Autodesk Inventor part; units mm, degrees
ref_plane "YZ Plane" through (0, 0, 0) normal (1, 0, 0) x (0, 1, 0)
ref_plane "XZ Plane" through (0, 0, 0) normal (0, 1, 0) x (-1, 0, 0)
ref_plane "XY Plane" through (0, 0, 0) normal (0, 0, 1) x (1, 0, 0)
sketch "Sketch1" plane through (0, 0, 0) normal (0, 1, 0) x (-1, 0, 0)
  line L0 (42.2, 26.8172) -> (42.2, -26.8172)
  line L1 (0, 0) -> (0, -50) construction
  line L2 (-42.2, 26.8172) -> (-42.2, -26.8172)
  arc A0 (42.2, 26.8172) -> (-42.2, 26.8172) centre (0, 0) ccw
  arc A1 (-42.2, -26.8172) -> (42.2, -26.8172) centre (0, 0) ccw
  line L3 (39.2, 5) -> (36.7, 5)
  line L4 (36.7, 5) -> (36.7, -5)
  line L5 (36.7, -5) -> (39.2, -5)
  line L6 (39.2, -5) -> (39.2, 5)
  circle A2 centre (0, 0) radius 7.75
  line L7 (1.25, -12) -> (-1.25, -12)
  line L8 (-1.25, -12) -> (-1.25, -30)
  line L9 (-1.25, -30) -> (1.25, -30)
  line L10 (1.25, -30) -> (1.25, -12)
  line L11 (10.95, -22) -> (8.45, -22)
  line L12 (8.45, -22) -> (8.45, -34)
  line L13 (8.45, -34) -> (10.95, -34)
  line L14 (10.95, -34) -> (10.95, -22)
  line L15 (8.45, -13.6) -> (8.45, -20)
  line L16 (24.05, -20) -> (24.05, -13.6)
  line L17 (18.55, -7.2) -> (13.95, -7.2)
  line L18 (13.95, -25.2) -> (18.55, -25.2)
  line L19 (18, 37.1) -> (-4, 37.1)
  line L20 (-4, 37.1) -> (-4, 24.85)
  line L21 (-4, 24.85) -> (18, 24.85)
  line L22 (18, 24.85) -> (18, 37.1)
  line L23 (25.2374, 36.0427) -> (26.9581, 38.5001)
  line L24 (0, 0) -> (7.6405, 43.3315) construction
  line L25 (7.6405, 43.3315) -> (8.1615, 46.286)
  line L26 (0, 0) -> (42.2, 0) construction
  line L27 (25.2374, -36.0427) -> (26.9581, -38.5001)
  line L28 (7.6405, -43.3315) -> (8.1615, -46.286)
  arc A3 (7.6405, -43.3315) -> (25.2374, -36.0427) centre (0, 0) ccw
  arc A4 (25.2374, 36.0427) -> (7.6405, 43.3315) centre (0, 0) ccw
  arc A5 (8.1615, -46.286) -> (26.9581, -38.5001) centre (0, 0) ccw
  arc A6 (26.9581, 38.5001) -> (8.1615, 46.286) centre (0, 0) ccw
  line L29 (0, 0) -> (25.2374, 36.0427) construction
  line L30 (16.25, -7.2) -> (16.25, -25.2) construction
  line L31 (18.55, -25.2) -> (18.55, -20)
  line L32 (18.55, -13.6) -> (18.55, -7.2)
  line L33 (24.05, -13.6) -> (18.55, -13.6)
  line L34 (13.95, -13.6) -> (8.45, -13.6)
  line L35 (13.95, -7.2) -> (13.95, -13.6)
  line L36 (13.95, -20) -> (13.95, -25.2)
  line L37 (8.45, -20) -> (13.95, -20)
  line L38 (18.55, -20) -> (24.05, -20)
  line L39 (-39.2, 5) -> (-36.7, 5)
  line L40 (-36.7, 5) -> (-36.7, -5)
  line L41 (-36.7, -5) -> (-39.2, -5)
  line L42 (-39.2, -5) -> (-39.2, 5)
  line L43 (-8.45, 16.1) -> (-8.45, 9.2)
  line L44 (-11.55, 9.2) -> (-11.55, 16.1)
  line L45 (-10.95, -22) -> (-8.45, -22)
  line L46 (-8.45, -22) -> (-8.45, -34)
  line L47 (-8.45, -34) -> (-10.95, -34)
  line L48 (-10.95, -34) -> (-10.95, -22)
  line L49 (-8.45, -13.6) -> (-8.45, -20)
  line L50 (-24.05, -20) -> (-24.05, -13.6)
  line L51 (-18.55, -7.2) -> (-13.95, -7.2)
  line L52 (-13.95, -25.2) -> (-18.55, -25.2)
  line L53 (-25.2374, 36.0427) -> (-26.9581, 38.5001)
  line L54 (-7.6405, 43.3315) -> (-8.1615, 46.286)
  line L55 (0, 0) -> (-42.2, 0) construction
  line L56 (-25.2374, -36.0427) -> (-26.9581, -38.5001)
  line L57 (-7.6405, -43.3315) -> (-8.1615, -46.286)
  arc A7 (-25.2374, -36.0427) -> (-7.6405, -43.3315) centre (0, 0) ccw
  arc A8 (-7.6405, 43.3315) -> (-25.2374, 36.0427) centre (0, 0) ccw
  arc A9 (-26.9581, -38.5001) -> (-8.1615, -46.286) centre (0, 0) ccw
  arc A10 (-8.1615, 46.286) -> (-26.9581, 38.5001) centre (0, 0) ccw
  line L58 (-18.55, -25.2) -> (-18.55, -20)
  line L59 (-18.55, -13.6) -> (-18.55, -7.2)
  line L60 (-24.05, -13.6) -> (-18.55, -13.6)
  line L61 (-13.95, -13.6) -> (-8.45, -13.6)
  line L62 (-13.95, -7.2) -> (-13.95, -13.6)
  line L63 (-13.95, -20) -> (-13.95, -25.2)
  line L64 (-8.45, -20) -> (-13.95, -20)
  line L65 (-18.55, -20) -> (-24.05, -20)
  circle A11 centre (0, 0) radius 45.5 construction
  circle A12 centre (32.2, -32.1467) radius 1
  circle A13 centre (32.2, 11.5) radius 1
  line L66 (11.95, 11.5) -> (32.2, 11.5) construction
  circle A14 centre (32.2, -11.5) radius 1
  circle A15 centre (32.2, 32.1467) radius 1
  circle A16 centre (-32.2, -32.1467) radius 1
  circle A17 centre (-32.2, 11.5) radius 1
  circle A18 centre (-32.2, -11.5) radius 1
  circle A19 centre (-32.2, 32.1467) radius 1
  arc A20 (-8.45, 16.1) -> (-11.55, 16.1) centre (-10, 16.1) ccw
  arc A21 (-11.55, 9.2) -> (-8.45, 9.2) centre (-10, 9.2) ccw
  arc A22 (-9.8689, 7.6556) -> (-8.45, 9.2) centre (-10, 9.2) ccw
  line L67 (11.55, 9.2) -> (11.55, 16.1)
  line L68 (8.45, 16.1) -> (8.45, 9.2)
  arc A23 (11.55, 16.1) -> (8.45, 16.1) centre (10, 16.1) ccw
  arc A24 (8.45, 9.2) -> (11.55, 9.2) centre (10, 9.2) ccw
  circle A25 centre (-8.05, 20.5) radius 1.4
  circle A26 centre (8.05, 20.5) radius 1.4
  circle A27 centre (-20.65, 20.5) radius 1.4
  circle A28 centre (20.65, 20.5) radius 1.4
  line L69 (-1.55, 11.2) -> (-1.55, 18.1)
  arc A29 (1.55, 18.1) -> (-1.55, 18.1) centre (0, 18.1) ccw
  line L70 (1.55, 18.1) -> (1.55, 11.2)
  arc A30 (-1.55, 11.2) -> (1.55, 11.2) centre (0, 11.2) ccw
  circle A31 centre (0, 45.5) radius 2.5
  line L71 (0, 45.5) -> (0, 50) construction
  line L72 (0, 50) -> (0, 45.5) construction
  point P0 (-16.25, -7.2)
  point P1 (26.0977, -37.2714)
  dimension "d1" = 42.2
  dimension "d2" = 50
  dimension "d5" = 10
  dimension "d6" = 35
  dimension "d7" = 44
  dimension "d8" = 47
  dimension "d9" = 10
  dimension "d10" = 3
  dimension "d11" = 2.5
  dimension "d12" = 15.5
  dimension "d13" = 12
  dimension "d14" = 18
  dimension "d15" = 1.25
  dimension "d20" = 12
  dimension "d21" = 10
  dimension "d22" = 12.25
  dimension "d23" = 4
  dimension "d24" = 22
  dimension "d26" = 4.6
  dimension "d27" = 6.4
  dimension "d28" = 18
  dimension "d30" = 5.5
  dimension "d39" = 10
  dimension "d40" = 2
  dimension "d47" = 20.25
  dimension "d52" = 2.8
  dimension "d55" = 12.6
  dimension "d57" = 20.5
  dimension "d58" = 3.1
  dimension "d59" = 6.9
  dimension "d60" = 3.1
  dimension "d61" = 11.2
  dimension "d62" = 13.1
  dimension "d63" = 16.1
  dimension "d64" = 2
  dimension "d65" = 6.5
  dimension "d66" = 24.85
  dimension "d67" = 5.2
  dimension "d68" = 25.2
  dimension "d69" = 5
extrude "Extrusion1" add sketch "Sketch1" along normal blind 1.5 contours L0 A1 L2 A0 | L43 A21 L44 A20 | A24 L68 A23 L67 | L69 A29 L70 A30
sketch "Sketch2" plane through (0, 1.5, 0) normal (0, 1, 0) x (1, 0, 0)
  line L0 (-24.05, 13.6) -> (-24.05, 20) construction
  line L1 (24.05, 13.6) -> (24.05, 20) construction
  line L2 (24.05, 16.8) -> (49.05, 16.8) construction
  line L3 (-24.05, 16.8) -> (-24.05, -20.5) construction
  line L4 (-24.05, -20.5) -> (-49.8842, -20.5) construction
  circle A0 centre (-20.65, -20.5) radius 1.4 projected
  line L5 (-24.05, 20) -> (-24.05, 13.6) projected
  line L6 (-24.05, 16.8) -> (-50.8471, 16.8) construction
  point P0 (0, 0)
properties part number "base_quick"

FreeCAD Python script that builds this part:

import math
import FreeCAD as App
import Part
import Sketcher
from FreeCAD import Vector
Q = App.Units.Quantity


def add_polygon(sketch, points):
    """Adds a closed chain of lines whose ends are joined by coincident constraints."""
    first, n = sketch.GeometryCount, len(points)
    for a, b in zip(points, points[1:] + points[:1]):
        sketch.addGeometry(Part.LineSegment(App.Vector(*a, 0), App.Vector(*b, 0)), False)
    for i in range(n):
        sketch.addConstraint(Sketcher.Constraint("Coincident", first + i, 2, first + (i + 1) % n, 1))

doc = App.newDocument("Part")
body = doc.addObject("PartDesign::Body", "Body")

# Sketch on XZ plane
sketch1 = body.newObject("Sketcher::SketchObject", "Sketch")
sketch1.AttachmentSupport = (doc.getObject("XZ_Plane"), [""])
sketch1.MapMode = "FlatFace"
sketch1.addGeometry(Part.LineSegment(Vector(-42.2, -26.8172, 0), Vector(-42.2, 26.8172, 0)), False)  # 0
sketch1.addGeometry(Part.ArcOfCircle(Part.Circle(Vector(0, 0, 0), Vector(0, 0, 1), 50.000022), math.radians(32.435088), math.radians(147.564912)), False)  # 1
sketch1.addGeometry(Part.LineSegment(Vector(42.2, 26.8172, 0), Vector(42.2, -26.8172, 0)), False)  # 2
sketch1.addGeometry(Part.ArcOfCircle(Part.Circle(Vector(0, 0, 0), Vector(0, 0, 1), 50.000022), math.radians(-147.564912), math.radians(-32.435088)), False)  # 3
sketch1.addGeometry(Part.Circle(Vector(32.2, -32.1467, 0), Vector(0, 0, 1), 1), False)  # 4
sketch1.addGeometry(Part.LineSegment(Vector(26.9581, -38.5001, 0), Vector(25.2374, -36.0427, 0)), False)  # 5
sketch1.addGeometry(Part.ArcOfCircle(Part.Circle(Vector(0.000748, -0.001363, 0), Vector(0, 0, 1), 43.998483), math.radians(-80.000667), math.radians(-54.999748)), False)  # 6
sketch1.addGeometry(Part.LineSegment(Vector(7.6405, -43.3315, 0), Vector(8.1615, -46.286, 0)), False)  # 7
sketch1.addGeometry(Part.ArcOfCircle(Part.Circle(Vector(-0.000763, 0.00139, 0), Vector(0, 0, 1), 47.001542), math.radians(-79.999344), math.radians(-55.000171)), False)  # 8
add_polygon(sketch1, [(10.95, -34), (10.95, -22), (8.45, -22), (8.45, -34)])  # lines 9-12
sketch1.addGeometry(Part.Circle(Vector(32.2, -11.5, 0), Vector(0, 0, 1), 1), False)  # 13
add_polygon(sketch1, [(13.95, -13.6), (8.45, -13.6), (8.45, -20), (13.95, -20), (13.95, -25.2), (18.55, -25.2), (18.55, -20), (24.05, -20), (24.05, -13.6), (18.55, -13.6), (18.55, -7.2), (13.95, -7.2)])  # lines 14-25
sketch1.addGeometry(Part.ArcOfCircle(Part.Circle(Vector(0.000435, 0.001493, 0), Vector(0, 0, 1), 44.001502), math.radians(-124.999381), math.radians(-100.000204)), False)  # 26
sketch1.addGeometry(Part.LineSegment(Vector(-25.2374, -36.0427, 0), Vector(-26.9581, -38.5001, 0)), False)  # 27
sketch1.addGeometry(Part.ArcOfCircle(Part.Circle(Vector(-0.000444, -0.001522, 0), Vector(0, 0, 1), 46.998465), math.radians(-125.000661), math.radians(-99.999825)), False)  # 28
sketch1.addGeometry(Part.LineSegment(Vector(-8.1615, -46.286, 0), Vector(-7.6405, -43.3315, 0)), False)  # 29
add_polygon(sketch1, [(-8.45, -22), (-10.95, -22), (-10.95, -34), (-8.45, -34)])  # lines 30-33
sketch1.addGeometry(Part.Circle(Vector(-32.2, -32.1467, 0), Vector(0, 0, 1), 1), False)  # 34
add_polygon(sketch1, [(1.25, -12), (-1.25, -12), (-1.25, -30), (1.25, -30)])  # lines 35-38
add_polygon(sketch1, [(-8.45, -20), (-8.45, -13.6), (-13.95, -13.6), (-13.95, -7.2), (-18.55, -7.2), (-18.55, -13.6), (-24.05, -13.6), (-24.05, -20), (-18.55, -20), (-18.55, -25.2), (-13.95, -25.2), (-13.95, -20)])  # lines 39-50
sketch1.addGeometry(Part.Circle(Vector(-32.2, -11.5, 0), Vector(0, 0, 1), 1), False)  # 51
add_polygon(sketch1, [(39.2, -5), (39.2, 5), (36.7, 5), (36.7, -5)])  # lines 52-55
sketch1.addGeometry(Part.Circle(Vector(32.2, 11.5, 0), Vector(0, 0, 1), 1), False)  # 56
sketch1.addGeometry(Part.Circle(Vector(20.65, 20.5, 0), Vector(0, 0, 1), 1.4), False)  # 57
sketch1.addGeometry(Part.Circle(Vector(8.05, 20.5, 0), Vector(0, 0, 1), 1.4), False)  # 58
sketch1.addGeometry(Part.Circle(Vector(32.2, 32.1467, 0), Vector(0, 0, 1), 1), False)  # 59
sketch1.addGeometry(Part.ArcOfCircle(Part.Circle(Vector(-0.000435, -0.001493, 0), Vector(0, 0, 1), 44.001502), math.radians(55.000619), math.radians(79.999796)), False)  # 60
sketch1.addGeometry(Part.LineSegment(Vector(25.2374, 36.0427, 0), Vector(26.9581, 38.5001, 0)), False)  # 61
sketch1.addGeometry(Part.ArcOfCircle(Part.Circle(Vector(0.000444, 0.001522, 0), Vector(0, 0, 1), 46.998465), math.radians(54.999339), math.radians(80.000175)), False)  # 62
sketch1.addGeometry(Part.LineSegment(Vector(8.1615, 46.286, 0), Vector(7.6405, 43.3315, 0)), False)  # 63
sketch1.addGeometry(Part.Circle(Vector(0, 0, 0), Vector(0, 0, 1), 7.75), False)  # 64
sketch1.addGeometry(Part.Circle(Vector(-8.05, 20.5, 0), Vector(0, 0, 1), 1.4), False)  # 65
sketch1.addGeometry(Part.Circle(Vector(-20.65, 20.5, 0), Vector(0, 0, 1), 1.4), False)  # 66
add_polygon(sketch1, [(-36.7, 5), (-39.2, 5), (-39.2, -5), (-36.7, -5)])  # lines 67-70
sketch1.addGeometry(Part.Circle(Vector(-32.2, 11.5, 0), Vector(0, 0, 1), 1), False)  # 71
add_polygon(sketch1, [(4, 37.1), (-18, 37.1), (-18, 24.85), (4, 24.85)])  # lines 72-75
sketch1.addGeometry(Part.Circle(Vector(0, 45.5, 0), Vector(0, 0, 1), 2.5), False)  # 76
sketch1.addGeometry(Part.LineSegment(Vector(-26.9581, 38.5001, 0), Vector(-25.2374, 36.0427, 0)), False)  # 77
sketch1.addGeometry(Part.ArcOfCircle(Part.Circle(Vector(-0.000748, 0.001363, 0), Vector(0, 0, 1), 43.998483), math.radians(99.999333), math.radians(125.000252)), False)  # 78
sketch1.addGeometry(Part.LineSegment(Vector(-7.6405, 43.3315, 0), Vector(-8.1615, 46.286, 0)), False)  # 79
sketch1.addGeometry(Part.ArcOfCircle(Part.Circle(Vector(0.000763, -0.00139, 0), Vector(0, 0, 1), 47.001542), math.radians(100.000656), math.radians(124.999829)), False)  # 80
sketch1.addGeometry(Part.Circle(Vector(-32.2, 32.1467, 0), Vector(0, 0, 1), 1), False)  # 81
sketch1.addConstraint([
    Sketcher.Constraint("Coincident", 0, 2, 1, 2),
    Sketcher.Constraint("Coincident", 1, 1, 2, 1),
    Sketcher.Constraint("Coincident", 2, 2, 3, 2),
    Sketcher.Constraint("Coincident", 3, 1, 0, 1),
    Sketcher.Constraint("Coincident", 5, 2, 6, 2),
    Sketcher.Constraint("Coincident", 6, 1, 7, 1),
    Sketcher.Constraint("Coincident", 7, 2, 8, 1),
    Sketcher.Constraint("Coincident", 8, 2, 5, 1),
    Sketcher.Constraint("Coincident", 26, 1, 27, 1),
    Sketcher.Constraint("Coincident", 27, 2, 28, 1),
    Sketcher.Constraint("Coincident", 28, 2, 29, 1),
    Sketcher.Constraint("Coincident", 29, 2, 26, 2),
    Sketcher.Constraint("Coincident", 60, 1, 61, 1),
    Sketcher.Constraint("Coincident", 61, 2, 62, 1),
    Sketcher.Constraint("Coincident", 62, 2, 63, 1),
    Sketcher.Constraint("Coincident", 63, 2, 60, 2),
    Sketcher.Constraint("Coincident", 77, 2, 78, 2),
    Sketcher.Constraint("Coincident", 78, 1, 79, 1),
    Sketcher.Constraint("Coincident", 79, 2, 80, 1),
    Sketcher.Constraint("Coincident", 80, 2, 77, 1),
    Sketcher.Constraint("Vertical", 0),
    Sketcher.Constraint("Vertical", 2),
    Sketcher.Constraint("Vertical", 9),
    Sketcher.Constraint("Horizontal", 10),
    Sketcher.Constraint("Vertical", 11),
    Sketcher.Constraint("Horizontal", 12),
    Sketcher.Constraint("Horizontal", 14),
    Sketcher.Constraint("Vertical", 15),
    Sketcher.Constraint("Horizontal", 16),
    Sketcher.Constraint("Vertical", 17),
    Sketcher.Constraint("Horizontal", 18),
    Sketcher.Constraint("Vertical", 19),
    Sketcher.Constraint("Horizontal", 20),
    Sketcher.Constraint("Vertical", 21),
    Sketcher.Constraint("Horizontal", 22),
    Sketcher.Constraint("Vertical", 23),
    Sketcher.Constraint("Horizontal", 24),
    Sketcher.Constraint("Vertical", 25),
    Sketcher.Constraint("Horizontal", 30),
    Sketcher.Constraint("Vertical", 31),
    Sketcher.Constraint("Horizontal", 32),
    Sketcher.Constraint("Vertical", 33),
    Sketcher.Constraint("Horizontal", 35),
    Sketcher.Constraint("Vertical", 36),
    Sketcher.Constraint("Horizontal", 37),
    Sketcher.Constraint("Vertical", 38),
    Sketcher.Constraint("Vertical", 39),
    Sketcher.Constraint("Horizontal", 40),
    Sketcher.Constraint("Vertical", 41),
    Sketcher.Constraint("Horizontal", 42),
    Sketcher.Constraint("Vertical", 43),
    Sketcher.Constraint("Horizontal", 44),
    Sketcher.Constraint("Vertical", 45),
    Sketcher.Constraint("Horizontal", 46),
    Sketcher.Constraint("Vertical", 47),
    Sketcher.Constraint("Horizontal", 48),
    Sketcher.Constraint("Vertical", 49),
    Sketcher.Constraint("Horizontal", 50),
    Sketcher.Constraint("Vertical", 52),
    Sketcher.Constraint("Horizontal", 53),
    Sketcher.Constraint("Vertical", 54),
    Sketcher.Constraint("Horizontal", 55),
    Sketcher.Constraint("Horizontal", 67),
    Sketcher.Constraint("Vertical", 68),
    Sketcher.Constraint("Horizontal", 69),
    Sketcher.Constraint("Vertical", 70),
    Sketcher.Constraint("Horizontal", 72),
    Sketcher.Constraint("Vertical", 73),
    Sketcher.Constraint("Horizontal", 74),
    Sketcher.Constraint("Vertical", 75),
    Sketcher.Constraint("Coincident", 1, 3, -1, 1),
    Sketcher.Constraint("Coincident", 3, 3, -1, 1),
    Sketcher.Constraint("Coincident", 64, 3, -1, 1),
    Sketcher.Constraint("Coincident", 60, 3, 28, 3),
    Sketcher.Constraint("Coincident", 62, 3, 26, 3),
    Sketcher.Constraint("Coincident", 78, 3, 8, 3),
    Sketcher.Constraint("Coincident", 80, 3, 6, 3),
    Sketcher.Constraint("Equal", 1, 3),
    Sketcher.Constraint("Equal", 4, 13),
    Sketcher.Constraint("Equal", 13, 34),
    Sketcher.Constraint("Equal", 34, 51),
    Sketcher.Constraint("Equal", 51, 56),
    Sketcher.Constraint("Equal", 57, 58),
    Sketcher.Constraint("Equal", 56, 59),
    Sketcher.Constraint("Equal", 26, 60),
    Sketcher.Constraint("Equal", 28, 62),
    Sketcher.Constraint("Equal", 58, 65),
    Sketcher.Constraint("Equal", 65, 66),
    Sketcher.Constraint("Equal", 59, 71),
    Sketcher.Constraint("Equal", 6, 78),
    Sketcher.Constraint("Equal", 8, 80),
    Sketcher.Constraint("Equal", 71, 81),
    Sketcher.Constraint("Symmetric", 6, 3, 8, 3, -1, 1),
    Sketcher.Constraint("Symmetric", 26, 3, 28, 3, -1, 1),
    Sketcher.Constraint("Symmetric", 51, 3, 56, 3, -1, 1),
    Sketcher.Constraint("Symmetric", 34, 3, 59, 3, -1, 1),
    Sketcher.Constraint("Symmetric", 13, 3, 71, 3, -1, 1),
    Sketcher.Constraint("Symmetric", 4, 3, 81, 3, -1, 1),
    Sketcher.Constraint("Symmetric", 55, 2, 67, 2, -1, 1),
    Sketcher.Constraint("Symmetric", 53, 2, 69, 2, -1, 1),
    Sketcher.Constraint("Symmetric", 8, 3, 26, 3, -2),
    Sketcher.Constraint("Symmetric", 4, 3, 34, 3, -2),
    Sketcher.Constraint("Symmetric", 13, 3, 51, 3, -2),
    Sketcher.Constraint("Symmetric", 58, 3, 65, 3, -2),
    Sketcher.Constraint("Symmetric", 57, 3, 66, 3, -2),
    Sketcher.Constraint("Symmetric", 5, 2, 26, 1, -2),
    Sketcher.Constraint("Symmetric", 8, 2, 27, 2, -2),
    Sketcher.Constraint("Symmetric", 7, 2, 28, 2, -2),
    Sketcher.Constraint("Symmetric", 9, 2, 30, 2, -2),
    Sketcher.Constraint("Symmetric", 11, 2, 32, 2, -2),
    Sketcher.Constraint("Symmetric", 14, 2, 39, 2, -2),
    Sketcher.Constraint("Symmetric", 24, 2, 41, 2, -2),
    Sketcher.Constraint("Symmetric", 22, 2, 43, 2, -2),
    Sketcher.Constraint("Symmetric", 20, 2, 45, 2, -2),
    Sketcher.Constraint("Symmetric", 18, 2, 47, 2, -2),
    Sketcher.Constraint("Symmetric", 16, 2, 49, 2, -2),
    Sketcher.Constraint("PointOnObject", 76, 3, -2),
    Sketcher.Constraint("Parallel", 27, 61),
    Sketcher.Constraint("Parallel", 29, 63),
    Sketcher.Constraint("Parallel", 5, 77),
    Sketcher.Constraint("Parallel", 7, 79),
    Sketcher.Constraint("Horizontal", 57, 3, 58, 3),
    Sketcher.Constraint("Horizontal", 0, 2, 1, 1),
    Sketcher.Constraint("Horizontal", 16, 2, 19, 2),
    Sketcher.Constraint("Horizontal", 14, 2, 21, 2),
    Sketcher.Constraint("Horizontal", 6, 1, 29, 2),
    Sketcher.Constraint("Horizontal", 53, 2, 67, 2),
    Sketcher.Constraint("Horizontal", 60, 1, 77, 2),
    Sketcher.Constraint("Horizontal", 63, 2, 78, 1),
    Sketcher.Constraint("Vertical", 4, 3, 13, 3),
    Sketcher.Constraint("Vertical", 11, 2, 14, 2),
    Sketcher.Constraint("Vertical", 19, 2, 22, 2),
    Sketcher.Constraint("Vertical", 17, 2, 24, 2),
    Sketcher.Constraint("Vertical", 5, 2, 60, 1),
    Sketcher.Constraint("Vertical", 7, 2, 62, 2),
    Sketcher.Constraint("Equal", 16, 20),
    Sketcher.Constraint("Equal", 32, 35),
    Sketcher.Constraint("Equal", 37, 53),
    Sketcher.Constraint("Equal", 21, 23),
    Sketcher.Constraint("Diameter", 4, Q("2 mm")),
    Sketcher.Constraint("Diameter", 76, Q("5 mm")),
    Sketcher.Constraint("Radius", 1, Q("50 mm")),
    Sketcher.Constraint("Diameter", 57, Q("2.8 mm")),
    Sketcher.Constraint("Diameter", 64, Q("15.5 mm")),
    Sketcher.Constraint("DistanceX", 72, 2, 72, 1, Q("22 mm")),
    Sketcher.Constraint("DistanceY", 9, 1, 9, 2, Q("12 mm")),
    Sketcher.Constraint("DistanceY", 36, 2, 36, 1, Q("18 mm")),
    Sketcher.Constraint("DistanceY", 52, 1, 52, 2, Q("10 mm")),
    Sketcher.Constraint("Distance", 5, Q("3 mm")),
    Sketcher.Constraint("DistanceX", 10, 2, 10, 1, Q("2.5 mm")),
    Sketcher.Constraint("DistanceX", 14, 2, 14, 1, Q("5.5 mm")),
    Sketcher.Constraint("DistanceX", 18, 1, 18, 2, Q("4.6 mm")),
    Sketcher.Constraint("DistanceY", 15, 2, 15, 1, Q("6.4 mm")),
    Sketcher.Constraint("DistanceY", 17, 2, 17, 1, Q("5.2 mm")),
    Sketcher.Constraint("DistanceY", 9, 2, -1, 1, Q("22 mm")),
    Sketcher.Constraint("DistanceY", 35, 2, -1, 1, Q("12 mm")),
    Sketcher.Constraint("DistanceX", 72, 2, -1, 1, Q("18 mm")),
    Sketcher.Constraint("DistanceY", 73, 2, 73, 1, Q("12.25 mm")),
    Sketcher.Constraint("DistanceY", -1, 1, 57, 3, Q("20.5 mm")),
    Sketcher.Constraint("DistanceX", 0, 2, -1, 1, Q("42.2 mm")),
    Sketcher.Constraint("DistanceY", 17, 2, -1, 1, Q("25.2 mm")),
    Sketcher.Constraint("DistanceX", 35, 2, -1, 1, Q("1.25 mm")),
    Sketcher.Constraint("DistanceY", -1, 1, 73, 2, Q("24.85 mm")),
    Sketcher.Constraint("Angle", 5, Q("125.0002 deg")),
    Sketcher.Constraint("Angle", 7, Q("-79.9992 deg")),
    Sketcher.Constraint("DistanceX", -1, 1, 4, 3, Q("32.2 mm")),
    Sketcher.Constraint("DistanceY", 13, 3, -1, 1, Q("11.5 mm")),
    Sketcher.Constraint("DistanceY", -1, 1, 76, 3, Q("45.5 mm")),
    Sketcher.Constraint("DistanceY", 8, 2, -1, 1, Q("38.5 mm")),
    Sketcher.Constraint("DistanceX", -1, 1, 52, 2, Q("39.2 mm")),
    Sketcher.Constraint("Radius", 6, Q("43.9985 mm")),
    Sketcher.Constraint("Radius", 8, Q("47.0015 mm")),
    Sketcher.Constraint("DistanceX", -1, 1, 57, 3, Q("20.65 mm")),
    Sketcher.Constraint("DistanceX", -1, 1, 58, 3, Q("8.05 mm")),
    Sketcher.Constraint("DistanceX", -1, 1, 9, 2, Q("10.95 mm")),
    Sketcher.Constraint("DistanceY", 7, 2, -1, 1, Q("46.286 mm")),
    Sketcher.Constraint("DistanceY", 4, 3, -1, 1, Q("32.1467 mm")),
])
pad1 = body.newObject("PartDesign::Pad", "Pad")
pad1.Profile = sketch1
pad1.Length = 1.5
pad1.Reversed = True

doc.recompute()
